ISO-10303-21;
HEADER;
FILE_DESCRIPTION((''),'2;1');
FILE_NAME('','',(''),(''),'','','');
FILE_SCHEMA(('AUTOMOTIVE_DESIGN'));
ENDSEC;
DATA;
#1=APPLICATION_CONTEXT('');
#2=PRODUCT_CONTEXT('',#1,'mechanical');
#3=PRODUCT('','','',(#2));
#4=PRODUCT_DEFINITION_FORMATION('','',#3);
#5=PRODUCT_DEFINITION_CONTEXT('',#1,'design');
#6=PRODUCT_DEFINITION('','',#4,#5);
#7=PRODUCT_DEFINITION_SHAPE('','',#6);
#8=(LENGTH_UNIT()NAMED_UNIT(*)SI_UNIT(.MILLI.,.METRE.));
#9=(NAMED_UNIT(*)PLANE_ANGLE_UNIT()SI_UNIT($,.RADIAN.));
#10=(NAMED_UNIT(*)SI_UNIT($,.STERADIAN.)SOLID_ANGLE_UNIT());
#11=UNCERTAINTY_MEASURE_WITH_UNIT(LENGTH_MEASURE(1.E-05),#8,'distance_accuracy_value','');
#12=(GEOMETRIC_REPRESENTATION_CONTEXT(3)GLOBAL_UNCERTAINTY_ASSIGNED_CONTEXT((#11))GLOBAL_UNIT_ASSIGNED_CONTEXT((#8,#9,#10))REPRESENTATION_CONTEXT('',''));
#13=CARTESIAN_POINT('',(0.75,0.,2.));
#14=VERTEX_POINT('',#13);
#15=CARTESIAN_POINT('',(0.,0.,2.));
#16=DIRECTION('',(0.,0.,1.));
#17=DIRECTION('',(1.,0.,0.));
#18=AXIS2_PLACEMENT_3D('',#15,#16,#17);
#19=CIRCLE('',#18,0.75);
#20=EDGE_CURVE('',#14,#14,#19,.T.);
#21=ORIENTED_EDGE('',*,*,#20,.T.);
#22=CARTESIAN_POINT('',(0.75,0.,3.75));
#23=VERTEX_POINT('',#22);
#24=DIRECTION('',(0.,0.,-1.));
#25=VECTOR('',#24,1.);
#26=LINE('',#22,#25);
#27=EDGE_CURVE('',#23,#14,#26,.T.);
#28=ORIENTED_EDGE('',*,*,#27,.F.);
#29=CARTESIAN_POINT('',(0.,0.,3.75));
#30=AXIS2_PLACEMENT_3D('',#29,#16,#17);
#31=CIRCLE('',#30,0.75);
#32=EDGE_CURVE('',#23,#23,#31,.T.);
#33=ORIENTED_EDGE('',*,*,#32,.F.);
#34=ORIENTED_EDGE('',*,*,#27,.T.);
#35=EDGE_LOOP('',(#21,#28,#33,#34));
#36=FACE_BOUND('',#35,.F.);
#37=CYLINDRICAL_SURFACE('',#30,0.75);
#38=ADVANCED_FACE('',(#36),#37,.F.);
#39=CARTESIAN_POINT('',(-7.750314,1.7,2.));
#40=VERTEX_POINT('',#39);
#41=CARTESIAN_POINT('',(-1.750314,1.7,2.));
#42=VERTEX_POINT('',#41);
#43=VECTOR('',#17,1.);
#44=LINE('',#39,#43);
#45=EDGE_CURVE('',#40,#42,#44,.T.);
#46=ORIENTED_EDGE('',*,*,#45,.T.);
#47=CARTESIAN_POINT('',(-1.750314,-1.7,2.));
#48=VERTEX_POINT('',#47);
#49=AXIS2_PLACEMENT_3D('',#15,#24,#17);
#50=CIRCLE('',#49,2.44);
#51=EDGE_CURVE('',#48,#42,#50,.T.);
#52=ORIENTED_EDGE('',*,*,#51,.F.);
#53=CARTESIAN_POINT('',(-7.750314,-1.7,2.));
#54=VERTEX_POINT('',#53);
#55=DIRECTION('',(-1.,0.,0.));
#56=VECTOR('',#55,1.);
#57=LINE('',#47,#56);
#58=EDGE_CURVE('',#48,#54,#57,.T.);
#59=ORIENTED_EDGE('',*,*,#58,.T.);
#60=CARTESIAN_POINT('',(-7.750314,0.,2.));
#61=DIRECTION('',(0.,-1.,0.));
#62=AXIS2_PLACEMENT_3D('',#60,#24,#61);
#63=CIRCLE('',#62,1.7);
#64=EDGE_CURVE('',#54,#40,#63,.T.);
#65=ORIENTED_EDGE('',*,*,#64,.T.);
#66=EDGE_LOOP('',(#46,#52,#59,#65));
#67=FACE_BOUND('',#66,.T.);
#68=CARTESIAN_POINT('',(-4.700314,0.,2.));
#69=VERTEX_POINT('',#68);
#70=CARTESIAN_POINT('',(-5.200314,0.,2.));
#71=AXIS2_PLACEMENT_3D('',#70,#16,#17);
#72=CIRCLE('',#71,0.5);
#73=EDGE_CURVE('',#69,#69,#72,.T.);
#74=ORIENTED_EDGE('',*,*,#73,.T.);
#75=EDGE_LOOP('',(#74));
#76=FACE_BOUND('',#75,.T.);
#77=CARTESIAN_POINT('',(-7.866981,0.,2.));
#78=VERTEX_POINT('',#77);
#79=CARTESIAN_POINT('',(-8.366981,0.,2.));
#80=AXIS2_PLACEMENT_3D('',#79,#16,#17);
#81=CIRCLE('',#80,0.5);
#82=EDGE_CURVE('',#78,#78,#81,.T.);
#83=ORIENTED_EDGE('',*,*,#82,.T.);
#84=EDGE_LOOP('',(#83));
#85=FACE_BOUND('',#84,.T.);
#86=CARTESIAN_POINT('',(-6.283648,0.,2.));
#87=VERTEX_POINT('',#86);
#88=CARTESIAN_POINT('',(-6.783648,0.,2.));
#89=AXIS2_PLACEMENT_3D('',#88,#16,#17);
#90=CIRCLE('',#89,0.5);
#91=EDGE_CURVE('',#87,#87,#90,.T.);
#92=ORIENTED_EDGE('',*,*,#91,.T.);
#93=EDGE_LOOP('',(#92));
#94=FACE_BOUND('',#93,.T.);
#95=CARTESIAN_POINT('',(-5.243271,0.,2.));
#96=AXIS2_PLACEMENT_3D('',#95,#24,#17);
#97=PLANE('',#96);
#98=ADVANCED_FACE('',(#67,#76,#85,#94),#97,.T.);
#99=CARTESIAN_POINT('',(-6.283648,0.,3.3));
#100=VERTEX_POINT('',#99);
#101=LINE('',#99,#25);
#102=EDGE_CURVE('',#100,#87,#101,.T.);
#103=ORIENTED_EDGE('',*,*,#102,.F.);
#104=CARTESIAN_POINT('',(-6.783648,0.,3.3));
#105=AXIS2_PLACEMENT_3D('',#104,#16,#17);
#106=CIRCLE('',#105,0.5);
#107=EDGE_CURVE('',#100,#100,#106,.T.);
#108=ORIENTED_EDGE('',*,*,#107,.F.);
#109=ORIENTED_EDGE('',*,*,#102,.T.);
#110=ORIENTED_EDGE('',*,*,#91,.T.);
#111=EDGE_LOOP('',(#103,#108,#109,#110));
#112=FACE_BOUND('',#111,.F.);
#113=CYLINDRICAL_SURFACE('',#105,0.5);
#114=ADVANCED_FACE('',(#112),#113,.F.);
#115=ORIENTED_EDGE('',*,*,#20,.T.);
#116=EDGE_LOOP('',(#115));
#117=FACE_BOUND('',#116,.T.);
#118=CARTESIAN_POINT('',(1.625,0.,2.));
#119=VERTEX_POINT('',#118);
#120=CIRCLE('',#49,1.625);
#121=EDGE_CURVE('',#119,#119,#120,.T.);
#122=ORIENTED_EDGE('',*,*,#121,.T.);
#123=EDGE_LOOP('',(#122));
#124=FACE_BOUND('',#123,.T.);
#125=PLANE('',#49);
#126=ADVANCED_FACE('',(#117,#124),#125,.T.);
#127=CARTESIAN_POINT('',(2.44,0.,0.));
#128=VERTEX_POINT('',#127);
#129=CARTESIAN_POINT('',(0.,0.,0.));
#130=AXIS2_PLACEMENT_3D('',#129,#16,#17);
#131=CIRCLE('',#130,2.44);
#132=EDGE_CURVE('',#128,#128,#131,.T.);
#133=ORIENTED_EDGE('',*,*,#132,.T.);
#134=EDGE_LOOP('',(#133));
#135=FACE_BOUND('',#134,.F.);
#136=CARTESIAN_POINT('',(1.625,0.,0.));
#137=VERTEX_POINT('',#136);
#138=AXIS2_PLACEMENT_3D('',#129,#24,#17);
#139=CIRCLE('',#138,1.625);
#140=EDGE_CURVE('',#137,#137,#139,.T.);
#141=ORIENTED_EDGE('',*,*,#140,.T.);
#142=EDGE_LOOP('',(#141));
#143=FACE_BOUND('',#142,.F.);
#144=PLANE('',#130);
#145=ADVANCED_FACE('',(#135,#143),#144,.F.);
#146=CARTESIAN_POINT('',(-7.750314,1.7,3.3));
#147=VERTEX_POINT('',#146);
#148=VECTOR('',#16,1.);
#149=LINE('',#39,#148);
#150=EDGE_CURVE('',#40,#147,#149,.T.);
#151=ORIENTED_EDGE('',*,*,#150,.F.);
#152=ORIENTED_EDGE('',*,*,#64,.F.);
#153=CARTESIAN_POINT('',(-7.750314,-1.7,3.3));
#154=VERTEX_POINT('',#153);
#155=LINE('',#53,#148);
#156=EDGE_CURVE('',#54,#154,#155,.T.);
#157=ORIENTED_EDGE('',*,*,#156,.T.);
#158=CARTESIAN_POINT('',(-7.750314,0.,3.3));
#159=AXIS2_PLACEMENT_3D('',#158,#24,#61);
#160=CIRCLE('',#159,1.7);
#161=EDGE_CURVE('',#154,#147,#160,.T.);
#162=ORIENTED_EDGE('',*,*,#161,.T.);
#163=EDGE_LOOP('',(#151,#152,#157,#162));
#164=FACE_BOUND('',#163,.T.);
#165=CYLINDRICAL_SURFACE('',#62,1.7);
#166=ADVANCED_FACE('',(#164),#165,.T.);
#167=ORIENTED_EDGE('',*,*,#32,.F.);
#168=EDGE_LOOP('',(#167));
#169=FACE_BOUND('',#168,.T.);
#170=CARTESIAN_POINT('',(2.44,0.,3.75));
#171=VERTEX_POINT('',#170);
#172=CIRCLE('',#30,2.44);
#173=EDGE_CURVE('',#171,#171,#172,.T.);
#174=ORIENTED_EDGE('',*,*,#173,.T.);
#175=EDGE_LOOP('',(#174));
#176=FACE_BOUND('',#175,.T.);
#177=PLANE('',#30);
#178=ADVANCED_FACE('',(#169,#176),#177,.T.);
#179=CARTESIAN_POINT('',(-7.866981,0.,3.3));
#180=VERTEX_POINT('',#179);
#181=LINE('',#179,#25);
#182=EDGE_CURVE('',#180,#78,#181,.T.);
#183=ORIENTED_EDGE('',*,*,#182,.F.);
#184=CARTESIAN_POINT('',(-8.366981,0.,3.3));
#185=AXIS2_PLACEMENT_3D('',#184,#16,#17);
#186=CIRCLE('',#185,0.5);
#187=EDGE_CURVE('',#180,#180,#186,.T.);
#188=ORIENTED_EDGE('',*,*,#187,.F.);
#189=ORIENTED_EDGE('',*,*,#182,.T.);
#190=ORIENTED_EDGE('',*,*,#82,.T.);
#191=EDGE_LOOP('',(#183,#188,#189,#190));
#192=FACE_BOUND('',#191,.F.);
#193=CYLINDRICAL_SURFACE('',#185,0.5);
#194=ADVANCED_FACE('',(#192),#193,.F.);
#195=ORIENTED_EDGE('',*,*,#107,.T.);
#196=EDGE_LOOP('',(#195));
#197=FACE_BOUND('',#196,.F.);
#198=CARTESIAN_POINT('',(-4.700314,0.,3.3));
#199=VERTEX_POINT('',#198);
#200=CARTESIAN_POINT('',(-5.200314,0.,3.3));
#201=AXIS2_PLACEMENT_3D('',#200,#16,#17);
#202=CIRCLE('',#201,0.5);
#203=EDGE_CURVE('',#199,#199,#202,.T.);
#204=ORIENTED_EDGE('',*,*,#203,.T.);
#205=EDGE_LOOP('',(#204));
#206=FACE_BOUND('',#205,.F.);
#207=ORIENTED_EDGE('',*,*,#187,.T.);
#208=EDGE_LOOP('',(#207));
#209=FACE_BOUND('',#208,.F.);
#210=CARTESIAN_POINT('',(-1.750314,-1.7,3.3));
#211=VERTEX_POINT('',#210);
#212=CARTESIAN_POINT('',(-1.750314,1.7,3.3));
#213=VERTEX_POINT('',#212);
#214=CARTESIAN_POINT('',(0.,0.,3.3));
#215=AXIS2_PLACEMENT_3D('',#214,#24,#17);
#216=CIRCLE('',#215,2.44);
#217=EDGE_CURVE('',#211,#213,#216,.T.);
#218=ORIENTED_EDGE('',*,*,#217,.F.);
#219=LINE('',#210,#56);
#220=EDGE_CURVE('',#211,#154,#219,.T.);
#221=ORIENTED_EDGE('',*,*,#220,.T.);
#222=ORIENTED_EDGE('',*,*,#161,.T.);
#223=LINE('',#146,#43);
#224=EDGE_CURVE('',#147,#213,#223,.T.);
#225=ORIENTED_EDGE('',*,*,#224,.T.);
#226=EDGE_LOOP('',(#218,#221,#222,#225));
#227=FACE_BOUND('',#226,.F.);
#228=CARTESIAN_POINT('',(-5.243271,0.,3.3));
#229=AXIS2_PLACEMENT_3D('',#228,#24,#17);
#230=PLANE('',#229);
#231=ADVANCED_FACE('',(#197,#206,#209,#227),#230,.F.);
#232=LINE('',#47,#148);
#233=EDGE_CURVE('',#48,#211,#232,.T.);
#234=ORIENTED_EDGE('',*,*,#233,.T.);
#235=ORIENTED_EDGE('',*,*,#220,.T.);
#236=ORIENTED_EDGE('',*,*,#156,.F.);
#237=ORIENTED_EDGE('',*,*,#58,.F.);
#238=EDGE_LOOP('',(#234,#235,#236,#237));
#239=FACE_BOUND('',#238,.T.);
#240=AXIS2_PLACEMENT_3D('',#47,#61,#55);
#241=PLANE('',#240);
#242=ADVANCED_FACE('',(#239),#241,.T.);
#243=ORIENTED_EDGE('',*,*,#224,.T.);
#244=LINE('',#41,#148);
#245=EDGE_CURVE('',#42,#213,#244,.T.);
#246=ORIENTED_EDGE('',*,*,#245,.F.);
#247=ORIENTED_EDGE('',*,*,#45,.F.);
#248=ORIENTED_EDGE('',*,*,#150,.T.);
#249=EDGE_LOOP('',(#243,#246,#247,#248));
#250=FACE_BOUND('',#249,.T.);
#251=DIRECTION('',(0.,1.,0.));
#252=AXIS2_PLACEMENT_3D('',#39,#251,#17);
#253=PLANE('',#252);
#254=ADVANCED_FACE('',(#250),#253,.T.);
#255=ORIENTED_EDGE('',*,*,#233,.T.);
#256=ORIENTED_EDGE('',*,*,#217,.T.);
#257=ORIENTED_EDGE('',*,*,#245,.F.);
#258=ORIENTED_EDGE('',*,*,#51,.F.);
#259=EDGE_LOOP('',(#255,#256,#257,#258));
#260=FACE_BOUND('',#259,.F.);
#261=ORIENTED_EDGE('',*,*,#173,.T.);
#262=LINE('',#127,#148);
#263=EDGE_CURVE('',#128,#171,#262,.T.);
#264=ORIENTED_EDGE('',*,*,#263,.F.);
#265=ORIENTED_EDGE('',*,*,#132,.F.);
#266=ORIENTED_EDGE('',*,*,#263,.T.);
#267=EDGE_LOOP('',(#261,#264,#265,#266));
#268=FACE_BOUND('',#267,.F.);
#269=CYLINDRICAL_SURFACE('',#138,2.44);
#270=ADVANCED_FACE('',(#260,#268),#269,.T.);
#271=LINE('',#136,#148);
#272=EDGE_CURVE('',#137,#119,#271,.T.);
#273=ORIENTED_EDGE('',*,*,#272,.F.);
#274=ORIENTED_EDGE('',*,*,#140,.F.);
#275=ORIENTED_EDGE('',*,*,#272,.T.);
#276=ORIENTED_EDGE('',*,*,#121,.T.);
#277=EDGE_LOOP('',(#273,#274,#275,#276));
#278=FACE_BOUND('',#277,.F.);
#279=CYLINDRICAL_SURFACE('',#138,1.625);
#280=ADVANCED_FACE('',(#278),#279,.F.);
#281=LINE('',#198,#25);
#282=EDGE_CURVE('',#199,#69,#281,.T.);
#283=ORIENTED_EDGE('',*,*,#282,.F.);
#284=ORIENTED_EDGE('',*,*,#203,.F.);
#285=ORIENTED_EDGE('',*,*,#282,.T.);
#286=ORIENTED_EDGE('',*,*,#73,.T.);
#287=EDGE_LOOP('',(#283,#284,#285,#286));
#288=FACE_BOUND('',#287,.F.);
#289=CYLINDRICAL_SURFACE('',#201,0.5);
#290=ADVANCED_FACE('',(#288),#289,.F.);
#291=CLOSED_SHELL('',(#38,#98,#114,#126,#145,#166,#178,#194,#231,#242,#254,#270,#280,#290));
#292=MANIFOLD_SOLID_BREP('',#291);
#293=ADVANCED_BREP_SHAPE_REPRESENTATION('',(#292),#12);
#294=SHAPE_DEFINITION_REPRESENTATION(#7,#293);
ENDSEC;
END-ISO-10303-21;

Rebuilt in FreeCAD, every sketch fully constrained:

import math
import FreeCAD as App
import Part
import Sketcher

V = App.Vector
Q = App.Units.Quantity

doc = App.newDocument("Part")
body = doc.addObject("PartDesign::Body", "Body")

# Sketch on XY plane
sketch1 = body.newObject("Sketcher::SketchObject", "Sketch")
sketch1.AttachmentSupport = (doc.getObject("XY_Plane"), [""])
sketch1.MapMode = "FlatFace"
sketch1.addGeometry(Part.Circle(V(0, 0, 0), V(0, 0, 1), 2.4), False)
sketch1.addConstraint([
    Sketcher.Constraint("Coincident", 0, 3, -1, 1),
    Sketcher.Constraint("Diameter", 0, Q("4.88 mm")),
])
pad1 = body.newObject("PartDesign::Pad", "Pad")
pad1.Profile = sketch1
pad1.Length = 3.75

# Sketch on XY plane
sketch2 = body.newObject("Sketcher::SketchObject", "Sketch001")
sketch2.AttachmentSupport = (doc.getObject("XY_Plane"), [""])
sketch2.MapMode = "FlatFace"
sketch2.addGeometry(Part.Circle(V(0, 0, 0), V(0, 0, 1), 1.6), False)
sketch2.addConstraint([
    Sketcher.Constraint("Coincident", 0, 3, -1, 1),
    Sketcher.Constraint("Diameter", 0, Q("3.25 mm")),
])
pocket1 = body.newObject("PartDesign::Pocket", "Pocket")
pocket1.Profile = sketch2
pocket1.Length = 2
pocket1.Reversed = True

# Sketch on XY plane
sketch3 = body.newObject("Sketcher::SketchObject", "Sketch002")
sketch3.AttachmentSupport = (doc.getObject("XY_Plane"), [""])
sketch3.MapMode = "FlatFace"
sketch3.AttachmentOffset = App.Placement(V(0, 0, 2), App.Rotation())
sketch3.addGeometry([
    Part.LineSegment(V(-7.8, 1.7, 0), V(-1.8, 1.7, 0)),
    Part.LineSegment(V(-1.8, 1.7, 0), V(-1.8, -1.7, 0)),
    Part.LineSegment(V(-1.8, -1.7, 0), V(-7.8, -1.7, 0)),
    Part.ArcOfCircle(Part.Circle(V(-7.8, 0, 0), V(0, 0, 1), 1.7), math.radians(90), math.radians(270)),
], False)
sketch3.addConstraint([
    Sketcher.Constraint("Coincident", 0, 2, 1, 1),
    Sketcher.Constraint("Coincident", 1, 2, 2, 1),
    Sketcher.Constraint("Tangent", 2, 2, 3, 2),
    Sketcher.Constraint("Tangent", 3, 1, 0, 1),
    Sketcher.Constraint("Horizontal", 0),
    Sketcher.Constraint("Vertical", 1),
    Sketcher.Constraint("Horizontal", 2),
    Sketcher.Constraint("PointOnObject", 3, 3, -1),
    Sketcher.Constraint("Radius", 3, Q("1.7 mm")),
    Sketcher.Constraint("DistanceX", 0, 1, 0, 2, Q("6 mm")),
    Sketcher.Constraint("DistanceX", 3, 3, -1, 1, Q("7.750314 mm")),
])
pad2 = body.newObject("PartDesign::Pad", "Pad001")
pad2.Profile = sketch3
pad2.Length = 1.3

# Sketch on XY plane
sketch4 = body.newObject("Sketcher::SketchObject", "Sketch003")
sketch4.AttachmentSupport = (doc.getObject("XY_Plane"), [""])
sketch4.MapMode = "FlatFace"
sketch4.AttachmentOffset = App.Placement(V(0, 0, 3.75), App.Rotation())
sketch4.addGeometry(Part.Circle(V(0, 0, 0), V(0, 0, 1), 0.8), False)
sketch4.addConstraint([
    Sketcher.Constraint("Coincident", 0, 3, -1, 1),
    Sketcher.Constraint("Diameter", 0, Q("1.5 mm")),
])
pocket2 = body.newObject("PartDesign::Pocket", "Pocket001")
pocket2.Profile = sketch4
pocket2.Length = 25

# Sketch on XY plane
sketch5 = body.newObject("Sketcher::SketchObject", "Sketch004")
sketch5.AttachmentSupport = (doc.getObject("XY_Plane"), [""])
sketch5.MapMode = "FlatFace"
sketch5.AttachmentOffset = App.Placement(V(0, 0, 3.3), App.Rotation())
sketch5.addGeometry([
    Part.Circle(V(-8.4, 0, 0), V(0, 0, 1), 0.5),
    Part.Circle(V(-6.8, 0, 0), V(0, 0, 1), 0.5),
    Part.Circle(V(-5.2, 0, 0), V(0, 0, 1), 0.5),
], False)
sketch5.addConstraint([
    Sketcher.Constraint("Equal", 0, 1),
    Sketcher.Constraint("Equal", 1, 2),
    Sketcher.Constraint("PointOnObject", 0, 3, -1),
    Sketcher.Constraint("PointOnObject", 1, 3, -1),
    Sketcher.Constraint("PointOnObject", 2, 3, -1),
    Sketcher.Constraint("Diameter", 0, Q("1 mm")),
    Sketcher.Constraint("DistanceX", 0, 3, -1, 1, Q("8.366981 mm")),
    Sketcher.Constraint("DistanceX", 1, 3, -1, 1, Q("6.783648 mm")),
    Sketcher.Constraint("DistanceX", 2, 3, -1, 1, Q("5.200314 mm")),
])
pocket3 = body.newObject("PartDesign::Pocket", "Pocket002")
pocket3.Profile = sketch5
pocket3.Type = "ThroughAll"

doc.recompute()
